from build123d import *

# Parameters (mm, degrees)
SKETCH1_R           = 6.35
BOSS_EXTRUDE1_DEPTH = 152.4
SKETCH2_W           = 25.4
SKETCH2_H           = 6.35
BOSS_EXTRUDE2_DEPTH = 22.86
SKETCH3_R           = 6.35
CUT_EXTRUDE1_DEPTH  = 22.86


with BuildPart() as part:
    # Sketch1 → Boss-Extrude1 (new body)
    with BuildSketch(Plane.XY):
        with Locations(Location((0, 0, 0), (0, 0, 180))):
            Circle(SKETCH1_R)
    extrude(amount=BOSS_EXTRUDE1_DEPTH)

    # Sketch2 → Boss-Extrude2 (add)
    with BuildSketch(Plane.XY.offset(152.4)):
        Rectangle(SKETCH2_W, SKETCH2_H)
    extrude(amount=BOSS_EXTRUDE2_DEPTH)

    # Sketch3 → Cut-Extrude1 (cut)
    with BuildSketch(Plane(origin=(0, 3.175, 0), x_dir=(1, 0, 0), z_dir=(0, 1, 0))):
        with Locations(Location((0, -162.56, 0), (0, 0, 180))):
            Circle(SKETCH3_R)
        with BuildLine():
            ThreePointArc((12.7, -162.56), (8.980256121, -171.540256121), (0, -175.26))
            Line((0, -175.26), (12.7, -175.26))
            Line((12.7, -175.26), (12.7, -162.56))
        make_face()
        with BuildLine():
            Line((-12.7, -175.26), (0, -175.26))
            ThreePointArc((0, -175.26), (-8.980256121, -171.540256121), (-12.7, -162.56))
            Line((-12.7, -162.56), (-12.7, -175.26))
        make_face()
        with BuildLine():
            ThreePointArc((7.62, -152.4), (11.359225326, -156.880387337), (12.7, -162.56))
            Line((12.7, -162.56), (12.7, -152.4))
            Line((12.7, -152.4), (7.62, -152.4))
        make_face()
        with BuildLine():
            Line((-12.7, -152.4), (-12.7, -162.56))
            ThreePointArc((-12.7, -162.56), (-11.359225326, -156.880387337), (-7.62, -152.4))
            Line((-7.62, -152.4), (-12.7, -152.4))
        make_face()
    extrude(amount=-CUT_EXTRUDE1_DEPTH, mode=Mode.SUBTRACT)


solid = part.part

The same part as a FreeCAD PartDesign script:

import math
import FreeCAD as App
import Part
import Sketcher
Q = App.Units.Quantity

doc = App.newDocument("Part")
body = doc.addObject("PartDesign::Body", "Body")

sketch1 = doc.addObject("Sketcher::SketchObject", "Sketch")
body.addObject(sketch1)
sketch1.AttachmentSupport = (doc.XY_Plane, [""])
sketch1.MapMode = "FlatFace"
sketch1.addGeometry(Part.Circle(App.Vector(0, 0, 0), App.Vector(0, 0, 1), 6.35), False)
sketch1.addConstraint([
    Sketcher.Constraint("Coincident", 0, 3, -1, 1),
    Sketcher.Constraint("Diameter", 0, Q("0.5 in")),
])
pad1 = doc.addObject("PartDesign::Pad", "Pad")
body.addObject(pad1)
pad1.Profile = sketch1
pad1.Length = Q("6 in")

sketch2 = doc.addObject("Sketcher::SketchObject", "Sketch001")
body.addObject(sketch2)
sketch2.AttachmentSupport = (doc.XY_Plane, [""])
sketch2.MapMode = "FlatFace"
sketch2.AttachmentOffset = App.Placement(App.Vector(0, 0, 6 * 25.4), App.Rotation())
sketch2.addGeometry([
    Part.LineSegment(App.Vector(-12.7, 3.175, 0), App.Vector(-12.7, -3.175, 0)),
    Part.LineSegment(App.Vector(-12.7, -3.175, 0), App.Vector(12.7, -3.175, 0)),
    Part.LineSegment(App.Vector(12.7, -3.175, 0), App.Vector(12.7, 3.175, 0)),
    Part.LineSegment(App.Vector(12.7, 3.175, 0), App.Vector(-12.7, 3.175, 0)),
], False)
sketch2.addConstraint([
    Sketcher.Constraint("Coincident", 0, 2, 1, 1),
    Sketcher.Constraint("Coincident", 1, 2, 2, 1),
    Sketcher.Constraint("Coincident", 2, 2, 3, 1),
    Sketcher.Constraint("Coincident", 3, 2, 0, 1),
    Sketcher.Constraint("Vertical", 0),
    Sketcher.Constraint("Horizontal", 1),
    Sketcher.Constraint("Vertical", 2),
    Sketcher.Constraint("Horizontal", 3),
    Sketcher.Constraint("Symmetric", 0, 2, 2, 2, -1, 1),
    Sketcher.Constraint("DistanceX", 1, 1, 1, 2, Q("1 in")),
    Sketcher.Constraint("DistanceY", 0, 2, 0, 1, Q("0.25 in")),
])
pad2 = doc.addObject("PartDesign::Pad", "Pad001")
body.addObject(pad2)
pad2.Profile = sketch2
pad2.Length = Q("0.9 in")

sketch3 = doc.addObject("Sketcher::SketchObject", "Sketch002")
body.addObject(sketch3)
sketch3.AttachmentSupport = (doc.XZ_Plane, [""])
sketch3.MapMode = "FlatFace"
sketch3.AttachmentOffset = App.Placement(App.Vector(0, 0, -0.125 * 25.4), App.Rotation())
sketch3.addGeometry([
    Part.Circle(App.Vector(0, 162.56, 0), App.Vector(0, 0, 1), 6.35),
    Part.ArcOfCircle(Part.Circle(App.Vector(0, 162.56, 0), App.Vector(0, 0, 1), 12.7), math.radians(0), math.radians(90)),
    Part.LineSegment(App.Vector(0, 175.26, 0), App.Vector(12.7, 175.26, 0)),
    Part.LineSegment(App.Vector(12.7, 175.26, 0), App.Vector(12.7, 162.56, 0)),
    Part.LineSegment(App.Vector(-12.7, 175.26, 0), App.Vector(0, 175.26, 0)),
    Part.ArcOfCircle(Part.Circle(App.Vector(0, 162.56, 0), App.Vector(0, 0, 1), 12.7), math.radians(90), math.radians(180)),
    Part.LineSegment(App.Vector(-12.7, 162.56, 0), App.Vector(-12.7, 175.26, 0)),
    Part.ArcOfCircle(Part.Circle(App.Vector(0, 162.56, 0), App.Vector(0, 0, 1), 12.7), math.radians(-53.130102), math.radians(0)),
    Part.LineSegment(App.Vector(12.7, 162.56, 0), App.Vector(12.7, 152.4, 0)),
    Part.LineSegment(App.Vector(12.7, 152.4, 0), App.Vector(7.62, 152.4, 0)),
    Part.LineSegment(App.Vector(-12.7, 152.4, 0), App.Vector(-12.7, 162.56, 0)),
    Part.ArcOfCircle(Part.Circle(App.Vector(0, 162.56, 0), App.Vector(0, 0, 1), 12.7), math.radians(180), math.radians(233.130102)),
    Part.LineSegment(App.Vector(-7.62, 152.4, 0), App.Vector(-12.7, 152.4, 0)),
], False)
sketch3.addConstraint([
    Sketcher.Constraint("Tangent", 1, 2, 2, 1),
    Sketcher.Constraint("Coincident", 2, 2, 3, 1),
    Sketcher.Constraint("Tangent", 3, 2, 1, 1),
    Sketcher.Constraint("Tangent", 4, 2, 5, 1),
    Sketcher.Constraint("Tangent", 5, 2, 6, 1),
    Sketcher.Constraint("Coincident", 6, 2, 4, 1),
    Sketcher.Constraint("Tangent", 7, 2, 8, 1),
    Sketcher.Constraint("Coincident", 8, 2, 9, 1),
    Sketcher.Constraint("Coincident", 9, 2, 7, 1),
    Sketcher.Constraint("Tangent", 10, 2, 11, 1),
    Sketcher.Constraint("Coincident", 11, 2, 12, 1),
    Sketcher.Constraint("Coincident", 12, 2, 10, 1),
    Sketcher.Constraint("Horizontal", 2),
    Sketcher.Constraint("Vertical", 3),
    Sketcher.Constraint("Horizontal", 4),
    Sketcher.Constraint("Vertical", 6),
    Sketcher.Constraint("Vertical", 8),
    Sketcher.Constraint("Horizontal", 9),
    Sketcher.Constraint("Vertical", 10),
    Sketcher.Constraint("Horizontal", 12),
    Sketcher.Constraint("Coincident", 1, 3, 0, 3),
    Sketcher.Constraint("Coincident", 5, 3, 0, 3),
    Sketcher.Constraint("Coincident", 7, 3, 0, 3),
    Sketcher.Constraint("Coincident", 11, 3, 0, 3),
    Sketcher.Constraint("Equal", 1, 5),
    Sketcher.Constraint("Equal", 5, 7),
    Sketcher.Constraint("Equal", 7, 11),
    Sketcher.Constraint("Symmetric", 9, 2, 11, 2, -2),
    Sketcher.Constraint("Diameter", 0, Q("0.5 in")),
    Sketcher.Constraint("Radius", 1, Q("0.5 in")),
    Sketcher.Constraint("DistanceX", 9, 2, 9, 1, Q("0.2 in")),
    Sketcher.Constraint("DistanceY", -1, 1, 8, 2, Q("6 in")),
])
pocket1 = doc.addObject("PartDesign::Pocket", "Pocket")
body.addObject(pocket1)
pocket1.Profile = sketch3
pocket1.Length = Q("0.9 in")
pocket1.Reversed = True

doc.recompute()
